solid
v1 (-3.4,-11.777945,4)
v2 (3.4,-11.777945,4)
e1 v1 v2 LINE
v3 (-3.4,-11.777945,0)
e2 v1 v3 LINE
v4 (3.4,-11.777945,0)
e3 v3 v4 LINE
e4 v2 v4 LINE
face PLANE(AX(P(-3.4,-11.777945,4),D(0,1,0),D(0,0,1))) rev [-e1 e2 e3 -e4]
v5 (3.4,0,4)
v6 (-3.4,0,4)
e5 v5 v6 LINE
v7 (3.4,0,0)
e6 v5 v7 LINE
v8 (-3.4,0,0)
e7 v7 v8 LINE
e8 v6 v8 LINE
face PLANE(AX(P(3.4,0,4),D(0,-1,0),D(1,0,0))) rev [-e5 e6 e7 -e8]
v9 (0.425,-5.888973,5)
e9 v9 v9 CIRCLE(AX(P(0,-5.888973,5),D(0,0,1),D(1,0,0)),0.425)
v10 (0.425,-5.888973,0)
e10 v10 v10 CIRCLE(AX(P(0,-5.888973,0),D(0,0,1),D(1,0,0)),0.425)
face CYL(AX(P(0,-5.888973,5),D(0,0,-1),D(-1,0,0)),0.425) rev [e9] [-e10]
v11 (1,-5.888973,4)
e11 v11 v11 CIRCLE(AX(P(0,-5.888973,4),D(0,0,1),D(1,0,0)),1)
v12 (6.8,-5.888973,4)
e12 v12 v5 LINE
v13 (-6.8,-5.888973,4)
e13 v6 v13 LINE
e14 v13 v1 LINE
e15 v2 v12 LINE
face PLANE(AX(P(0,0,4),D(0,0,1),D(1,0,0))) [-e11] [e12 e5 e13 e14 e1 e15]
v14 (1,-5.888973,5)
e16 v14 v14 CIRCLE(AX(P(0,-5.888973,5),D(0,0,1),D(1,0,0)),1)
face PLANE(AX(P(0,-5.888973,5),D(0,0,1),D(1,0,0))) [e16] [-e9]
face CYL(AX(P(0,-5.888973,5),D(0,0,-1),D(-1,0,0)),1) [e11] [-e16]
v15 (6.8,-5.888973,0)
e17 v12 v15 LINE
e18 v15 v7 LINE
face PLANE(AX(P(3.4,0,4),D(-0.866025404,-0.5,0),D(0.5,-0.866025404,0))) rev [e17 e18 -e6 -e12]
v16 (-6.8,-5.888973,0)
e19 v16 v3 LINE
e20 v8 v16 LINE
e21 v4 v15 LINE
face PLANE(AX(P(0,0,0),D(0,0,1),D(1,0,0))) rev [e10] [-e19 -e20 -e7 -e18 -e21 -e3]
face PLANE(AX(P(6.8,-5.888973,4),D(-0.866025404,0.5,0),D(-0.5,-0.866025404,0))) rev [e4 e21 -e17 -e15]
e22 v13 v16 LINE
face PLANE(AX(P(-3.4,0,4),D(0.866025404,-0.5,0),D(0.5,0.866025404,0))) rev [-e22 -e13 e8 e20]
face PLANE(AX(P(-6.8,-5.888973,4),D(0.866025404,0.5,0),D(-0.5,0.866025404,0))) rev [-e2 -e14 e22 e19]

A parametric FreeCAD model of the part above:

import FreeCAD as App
import Part
import Sketcher
Q = App.Units.Quantity


def add_polygon(sketch, points):
    """Adds a closed chain of lines whose ends are joined by coincident constraints."""
    first, n = sketch.GeometryCount, len(points)
    for a, b in zip(points, points[1:] + points[:1]):
        sketch.addGeometry(Part.LineSegment(App.Vector(*a, 0), App.Vector(*b, 0)), False)
    for i in range(n):
        sketch.addConstraint(Sketcher.Constraint("Coincident", first + i, 2, first + (i + 1) % n, 1))

doc = App.newDocument("Part")
body = doc.addObject("PartDesign::Body", "Body")

# Sketch on XY plane
sketch1 = doc.addObject("Sketcher::SketchObject", "Sketch")
body.addObject(sketch1)
sketch1.AttachmentSupport = (doc.XY_Plane, [""])
sketch1.MapMode = "FlatFace"
add_polygon(sketch1, [(3, 0), (-3, 0), (-7, -6), (-3, -12), (3, -12), (7, -6)])  # lines 0-5
sketch1.addConstraint(Sketcher.Constraint("Horizontal", 0))
sketch1.addConstraint(Sketcher.Constraint("Horizontal", 3))
sketch1.addConstraint(Sketcher.Constraint("Symmetric", 0, 2, 5, 2, -1, 1))
sketch1.addConstraint(Sketcher.Constraint("Symmetric", 1, 2, 4, 2, -2))
sketch1.addConstraint(Sketcher.Constraint("Parallel", 1, 4))
sketch1.addConstraint(Sketcher.Constraint("Parallel", 2, 5))
sketch1.addConstraint(Sketcher.Constraint("Vertical", 0, 2, 2, 2))
sketch1.addConstraint(Sketcher.Constraint("Angle", 1, Q("-120 deg")))
sketch1.addConstraint(Sketcher.Constraint("DistanceX", 0, 2, 0, 1, 6.8))
sketch1.addConstraint(Sketcher.Constraint("Distance", 1, 6.8))
pad1 = doc.addObject("PartDesign::Pad", "Pad")
body.addObject(pad1)
pad1.Profile = sketch1
pad1.Length = 4

# Sketch on XY plane
sketch2 = doc.addObject("Sketcher::SketchObject", "Sketch001")
body.addObject(sketch2)
sketch2.AttachmentSupport = (doc.XY_Plane, [""])
sketch2.MapMode = "FlatFace"
sketch2.AttachmentOffset = App.Placement(App.Vector(0, 0, 4), App.Rotation())
sketch2.addGeometry(Part.Circle(App.Vector(0, -5.89, 0), App.Vector(0, 0, 1), 1), False)
sketch2.addGeometry(Part.Circle(App.Vector(0, -5.89, 0), App.Vector(0, 0, 1), 0.42), False)
sketch2.addConstraint(Sketcher.Constraint("Coincident", 1, 3, 0, 3))
sketch2.addConstraint(Sketcher.Constraint("PointOnObject", 0, 3, -2))
sketch2.addConstraint(Sketcher.Constraint("Diameter", 0, 2.0))
sketch2.addConstraint(Sketcher.Constraint("Diameter", 1, 0.85))
sketch2.addConstraint(Sketcher.Constraint("DistanceY", 0, 3, -1, 1, 5.888973))
pad2 = doc.addObject("PartDesign::Pad", "Pad001")
body.addObject(pad2)
pad2.Profile = sketch2
pad2.Length = 1

# Sketch on XY plane
sketch3 = doc.addObject("Sketcher::SketchObject", "Sketch002")
body.addObject(sketch3)
sketch3.AttachmentSupport = (doc.XY_Plane, [""])
sketch3.MapMode = "FlatFace"
sketch3.AttachmentOffset = App.Placement(App.Vector(0, 0, 4), App.Rotation())
sketch3.addGeometry(Part.Circle(App.Vector(0, -5.89, 0), App.Vector(0, 0, 1), 0.42), False)
sketch3.addConstraint(Sketcher.Constraint("PointOnObject", 0, 3, -2))
sketch3.addConstraint(Sketcher.Constraint("Diameter", 0, 0.85))
sketch3.addConstraint(Sketcher.Constraint("DistanceY", 0, 3, -1, 1, 5.888973))
pocket1 = doc.addObject("PartDesign::Pocket", "Pocket")
body.addObject(pocket1)
pocket1.Profile = sketch3
pocket1.Length = 63

doc.recompute()
